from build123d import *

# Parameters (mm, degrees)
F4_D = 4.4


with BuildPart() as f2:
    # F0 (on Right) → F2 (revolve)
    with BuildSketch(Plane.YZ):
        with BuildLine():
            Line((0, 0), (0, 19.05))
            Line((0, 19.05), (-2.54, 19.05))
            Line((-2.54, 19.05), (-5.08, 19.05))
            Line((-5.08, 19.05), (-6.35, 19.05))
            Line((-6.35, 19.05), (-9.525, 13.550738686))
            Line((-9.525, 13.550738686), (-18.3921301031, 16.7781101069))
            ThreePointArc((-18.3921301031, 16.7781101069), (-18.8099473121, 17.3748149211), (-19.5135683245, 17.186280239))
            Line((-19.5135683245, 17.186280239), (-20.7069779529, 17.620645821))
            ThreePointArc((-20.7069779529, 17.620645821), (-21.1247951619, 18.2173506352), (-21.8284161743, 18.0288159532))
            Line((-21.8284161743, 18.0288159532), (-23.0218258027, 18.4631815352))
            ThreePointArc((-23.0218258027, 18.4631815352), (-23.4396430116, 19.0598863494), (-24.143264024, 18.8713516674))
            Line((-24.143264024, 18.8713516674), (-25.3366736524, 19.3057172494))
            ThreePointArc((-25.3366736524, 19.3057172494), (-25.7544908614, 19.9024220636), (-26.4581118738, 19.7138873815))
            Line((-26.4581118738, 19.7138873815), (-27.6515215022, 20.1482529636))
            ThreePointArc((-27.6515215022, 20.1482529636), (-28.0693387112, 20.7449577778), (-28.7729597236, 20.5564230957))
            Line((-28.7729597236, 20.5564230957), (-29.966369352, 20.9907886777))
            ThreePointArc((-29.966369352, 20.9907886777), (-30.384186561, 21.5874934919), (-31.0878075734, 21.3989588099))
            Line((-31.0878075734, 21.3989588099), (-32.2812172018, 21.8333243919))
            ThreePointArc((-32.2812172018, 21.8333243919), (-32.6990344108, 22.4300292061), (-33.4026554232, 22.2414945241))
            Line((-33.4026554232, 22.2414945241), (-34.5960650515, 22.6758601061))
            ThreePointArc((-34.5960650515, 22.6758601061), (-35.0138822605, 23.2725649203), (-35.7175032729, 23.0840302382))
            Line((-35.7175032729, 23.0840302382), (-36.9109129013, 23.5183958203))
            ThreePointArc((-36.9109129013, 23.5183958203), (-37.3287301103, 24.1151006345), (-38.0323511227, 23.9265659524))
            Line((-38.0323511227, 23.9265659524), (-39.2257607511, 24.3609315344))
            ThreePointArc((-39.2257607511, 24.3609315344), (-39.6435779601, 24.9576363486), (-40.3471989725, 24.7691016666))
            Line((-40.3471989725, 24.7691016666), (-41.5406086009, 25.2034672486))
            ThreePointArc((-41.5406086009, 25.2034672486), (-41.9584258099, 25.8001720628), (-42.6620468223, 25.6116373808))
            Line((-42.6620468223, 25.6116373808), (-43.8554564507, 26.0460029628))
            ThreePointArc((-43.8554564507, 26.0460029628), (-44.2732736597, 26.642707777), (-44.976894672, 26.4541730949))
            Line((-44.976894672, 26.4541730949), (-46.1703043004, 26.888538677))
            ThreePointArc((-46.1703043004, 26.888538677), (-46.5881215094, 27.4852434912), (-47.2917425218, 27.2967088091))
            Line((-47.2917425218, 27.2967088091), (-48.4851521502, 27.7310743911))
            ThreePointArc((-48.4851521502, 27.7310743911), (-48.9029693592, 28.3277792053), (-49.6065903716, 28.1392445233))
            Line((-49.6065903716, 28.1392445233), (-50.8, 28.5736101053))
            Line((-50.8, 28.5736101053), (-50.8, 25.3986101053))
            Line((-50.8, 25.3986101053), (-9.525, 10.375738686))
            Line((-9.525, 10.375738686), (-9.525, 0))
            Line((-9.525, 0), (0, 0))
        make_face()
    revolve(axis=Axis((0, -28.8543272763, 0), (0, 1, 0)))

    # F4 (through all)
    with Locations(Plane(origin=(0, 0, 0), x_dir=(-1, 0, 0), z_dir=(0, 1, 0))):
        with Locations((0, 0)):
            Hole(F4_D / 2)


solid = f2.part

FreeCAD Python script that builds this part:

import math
import FreeCAD as App
import Part
import Sketcher
from FreeCAD import Vector
Q = App.Units.Quantity

doc = App.newDocument("Part")
params = doc.addObject("Spreadsheet::Sheet", "Params")
for row, (alias, value) in enumerate([
    ("sketch1_radius", "0.025 in"),
    ("sketch1_width", "0.25 in"),
    ("sketch1_height", "0.75 in"),
    ("sketch1_length", "0.25 in"),
    ("sketch1_length2", "0.05 in"),
    ("revolution_angle", "360 deg"),
    ("hole_diameter", "4.4 mm"),
], start=1):
    params.set(f"A{row}", alias)
    params.set(f"B{row}", "=" + value)
    params.setAlias(f"B{row}", alias)

body = doc.addObject("PartDesign::Body", "Body")

sketch1 = body.newObject("Sketcher::SketchObject", "Sketch")
sketch1.AttachmentSupport = (doc.getObject("YZ_Plane"), [""])
sketch1.MapMode = "FlatFace"
sketch1.addGeometry([
    Part.LineSegment(Vector(0, 0, 0), Vector(0, 19.1, 0)),
    Part.LineSegment(Vector(0, 19.1, 0), Vector(-6.3, 19.1, 0)),
    Part.LineSegment(Vector(-6.3, 19.1, 0), Vector(-9.5, 13.6, 0)),
    Part.LineSegment(Vector(-9.5, 13.6, 0), Vector(-18.4, 16.8, 0)),
    Part.ArcOfCircle(Part.Circle(Vector(-19, 16.8, 0), Vector(0, 0, 1), 0.6), math.radians(0), math.radians(140)),
    Part.LineSegment(Vector(-19.5, 17.2, 0), Vector(-20.7, 17.6, 0)),
    Part.ArcOfCircle(Part.Circle(Vector(-21.3, 17.6, 0), Vector(0, 0, 1), 0.6), math.radians(0), math.radians(140)),
    Part.LineSegment(Vector(-21.8, 18, 0), Vector(-23, 18.5, 0)),
    Part.ArcOfCircle(Part.Circle(Vector(-23.7, 18.5, 0), Vector(0, 0, 1), 0.6), math.radians(0), math.radians(140)),
    Part.LineSegment(Vector(-24.1, 18.9, 0), Vector(-25.3, 19.3, 0)),
    Part.ArcOfCircle(Part.Circle(Vector(-26, 19.3, 0), Vector(0, 0, 1), 0.6), math.radians(0), math.radians(140)),
    Part.LineSegment(Vector(-26.5, 19.7, 0), Vector(-27.7, 20.1, 0)),
    Part.ArcOfCircle(Part.Circle(Vector(-28.3, 20.1, 0), Vector(0, 0, 1), 0.6), math.radians(0), math.radians(140)),
    Part.LineSegment(Vector(-28.8, 20.6, 0), Vector(-30, 21, 0)),
    Part.ArcOfCircle(Part.Circle(Vector(-30.6, 21, 0), Vector(0, 0, 1), 0.6), math.radians(0), math.radians(140)),
    Part.LineSegment(Vector(-31.1, 21.4, 0), Vector(-32.3, 21.8, 0)),
    Part.ArcOfCircle(Part.Circle(Vector(-32.9, 21.8, 0), Vector(0, 0, 1), 0.6), math.radians(0), math.radians(140)),
    Part.LineSegment(Vector(-33.4, 22.2, 0), Vector(-34.6, 22.7, 0)),
    Part.ArcOfCircle(Part.Circle(Vector(-35.2, 22.7, 0), Vector(0, 0, 1), 0.6), math.radians(0), math.radians(140)),
    Part.LineSegment(Vector(-35.7, 23.1, 0), Vector(-36.9, 23.5, 0)),
    Part.ArcOfCircle(Part.Circle(Vector(-37.5, 23.5, 0), Vector(0, 0, 1), 0.6), math.radians(0), math.radians(140)),
    Part.LineSegment(Vector(-38, 23.9, 0), Vector(-39.2, 24.4, 0)),
    Part.ArcOfCircle(Part.Circle(Vector(-39.9, 24.4, 0), Vector(0, 0, 1), 0.6), math.radians(0), math.radians(140)),
    Part.LineSegment(Vector(-40.3, 24.8, 0), Vector(-41.5, 25.2, 0)),
    Part.ArcOfCircle(Part.Circle(Vector(-42.2, 25.2, 0), Vector(0, 0, 1), 0.6), math.radians(0), math.radians(140)),
    Part.LineSegment(Vector(-42.7, 25.6, 0), Vector(-43.9, 26, 0)),
    Part.ArcOfCircle(Part.Circle(Vector(-44.5, 26, 0), Vector(0, 0, 1), 0.6), math.radians(0), math.radians(140)),
    Part.LineSegment(Vector(-45, 26.5, 0), Vector(-46.2, 26.9, 0)),
    Part.ArcOfCircle(Part.Circle(Vector(-46.8, 26.9, 0), Vector(0, 0, 1), 0.6), math.radians(0), math.radians(140)),
    Part.LineSegment(Vector(-47.3, 27.3, 0), Vector(-48.5, 27.7, 0)),
    Part.ArcOfCircle(Part.Circle(Vector(-49.1, 27.7, 0), Vector(0, 0, 1), 0.6), math.radians(0), math.radians(140)),
    Part.LineSegment(Vector(-49.6, 28.1, 0), Vector(-50.8, 28.6, 0)),
    Part.LineSegment(Vector(-50.8, 28.6, 0), Vector(-50.8, 25.4, 0)),
    Part.LineSegment(Vector(-50.8, 25.4, 0), Vector(-9.5, 10.4, 0)),
    Part.LineSegment(Vector(-9.5, 10.4, 0), Vector(-9.5, 0, 0)),
    Part.LineSegment(Vector(-9.5, 0, 0), Vector(0, 0, 0)),
], False)
sketch1.addConstraint([
    Sketcher.Constraint("Coincident", 0, 2, 1, 1),
    Sketcher.Constraint("Coincident", 1, 2, 2, 1),
    Sketcher.Constraint("Coincident", 2, 2, 3, 1),
    Sketcher.Constraint("Coincident", 3, 2, 4, 1),
    Sketcher.Constraint("Coincident", 4, 2, 5, 1),
    Sketcher.Constraint("Coincident", 5, 2, 6, 1),
    Sketcher.Constraint("Coincident", 6, 2, 7, 1),
    Sketcher.Constraint("Coincident", 7, 2, 8, 1),
    Sketcher.Constraint("Coincident", 8, 2, 9, 1),
    Sketcher.Constraint("Coincident", 9, 2, 10, 1),
    Sketcher.Constraint("Coincident", 10, 2, 11, 1),
    Sketcher.Constraint("Coincident", 11, 2, 12, 1),
    Sketcher.Constraint("Coincident", 12, 2, 13, 1),
    Sketcher.Constraint("Coincident", 13, 2, 14, 1),
    Sketcher.Constraint("Coincident", 14, 2, 15, 1),
    Sketcher.Constraint("Coincident", 15, 2, 16, 1),
    Sketcher.Constraint("Coincident", 16, 2, 17, 1),
    Sketcher.Constraint("Coincident", 17, 2, 18, 1),
    Sketcher.Constraint("Coincident", 18, 2, 19, 1),
    Sketcher.Constraint("Coincident", 19, 2, 20, 1),
    Sketcher.Constraint("Coincident", 20, 2, 21, 1),
    Sketcher.Constraint("Coincident", 21, 2, 22, 1),
    Sketcher.Constraint("Coincident", 22, 2, 23, 1),
    Sketcher.Constraint("Coincident", 23, 2, 24, 1),
    Sketcher.Constraint("Coincident", 24, 2, 25, 1),
    Sketcher.Constraint("Coincident", 25, 2, 26, 1),
    Sketcher.Constraint("Coincident", 26, 2, 27, 1),
    Sketcher.Constraint("Coincident", 27, 2, 28, 1),
    Sketcher.Constraint("Coincident", 28, 2, 29, 1),
    Sketcher.Constraint("Coincident", 29, 2, 30, 1),
    Sketcher.Constraint("Coincident", 30, 2, 31, 1),
    Sketcher.Constraint("Coincident", 31, 2, 32, 1),
    Sketcher.Constraint("Coincident", 32, 2, 33, 1),
    Sketcher.Constraint("Coincident", 33, 2, 34, 1),
    Sketcher.Constraint("Coincident", 34, 2, 35, 1),
    Sketcher.Constraint("Coincident", 35, 2, 0, 1),
    Sketcher.Constraint("Vertical", 0),
    Sketcher.Constraint("Horizontal", 1),
    Sketcher.Constraint("Vertical", 32),
    Sketcher.Constraint("Vertical", 34),
    Sketcher.Constraint("Horizontal", 35),
    Sketcher.Constraint("Coincident", 35, 2, -1, 1),
    Sketcher.Constraint("Equal", 4, 6),
    Sketcher.Constraint("Equal", 6, 8),
    Sketcher.Constraint("Equal", 8, 10),
    Sketcher.Constraint("Equal", 10, 12),
    Sketcher.Constraint("Equal", 12, 14),
    Sketcher.Constraint("Equal", 14, 16),
    Sketcher.Constraint("Equal", 16, 18),
    Sketcher.Constraint("Equal", 18, 20),
    Sketcher.Constraint("Equal", 20, 22),
    Sketcher.Constraint("Equal", 22, 24),
    Sketcher.Constraint("Equal", 24, 26),
    Sketcher.Constraint("Equal", 26, 28),
    Sketcher.Constraint("Equal", 28, 30),
    Sketcher.Constraint("Parallel", 3, 5),
    Sketcher.Constraint("Parallel", 5, 7),
    Sketcher.Constraint("Parallel", 7, 9),
    Sketcher.Constraint("Parallel", 9, 11),
    Sketcher.Constraint("Parallel", 11, 13),
    Sketcher.Constraint("Parallel", 13, 15),
    Sketcher.Constraint("Parallel", 15, 17),
    Sketcher.Constraint("Parallel", 17, 19),
    Sketcher.Constraint("Parallel", 19, 21),
    Sketcher.Constraint("Parallel", 21, 23),
    Sketcher.Constraint("Parallel", 23, 25),
    Sketcher.Constraint("Parallel", 25, 27),
    Sketcher.Constraint("Parallel", 27, 29),
    Sketcher.Constraint("Parallel", 29, 31),
    Sketcher.Constraint("Parallel", 31, 33),
    Sketcher.Constraint("Horizontal", 4, 3, 3, 2),
    Sketcher.Constraint("Horizontal", 6, 3, 5, 2),
    Sketcher.Constraint("Horizontal", 8, 3, 7, 2),
    Sketcher.Constraint("Horizontal", 10, 3, 9, 2),
    Sketcher.Constraint("Horizontal", 12, 3, 11, 2),
    Sketcher.Constraint("Horizontal", 14, 3, 13, 2),
    Sketcher.Constraint("Horizontal", 16, 3, 15, 2),
    Sketcher.Constraint("Horizontal", 18, 3, 17, 2),
    Sketcher.Constraint("Horizontal", 20, 3, 19, 2),
    Sketcher.Constraint("Horizontal", 22, 3, 21, 2),
    Sketcher.Constraint("Horizontal", 24, 3, 23, 2),
    Sketcher.Constraint("Horizontal", 26, 3, 25, 2),
    Sketcher.Constraint("Horizontal", 28, 3, 27, 2),
    Sketcher.Constraint("Horizontal", 30, 3, 29, 2),
    Sketcher.Constraint("Vertical", 2, 2, 33, 2),
    Sketcher.Constraint("Equal", 5, 7),
    Sketcher.Constraint("Equal", 7, 9),
    Sketcher.Constraint("Equal", 9, 11),
    Sketcher.Constraint("Equal", 11, 13),
    Sketcher.Constraint("Equal", 13, 15),
    Sketcher.Constraint("Equal", 15, 17),
    Sketcher.Constraint("Equal", 17, 19),
    Sketcher.Constraint("Equal", 19, 21),
    Sketcher.Constraint("Equal", 21, 23),
    Sketcher.Constraint("Equal", 23, 25),
    Sketcher.Constraint("Equal", 25, 27),
    Sketcher.Constraint("Equal", 27, 29),
    Sketcher.Constraint("Equal", 29, 31),
    Sketcher.Constraint("DistanceX", 31, 2, -1, 1, Q("2 in")),
    Sketcher.Constraint("Angle", 2, Q("-120 deg")),
    Sketcher.Constraint("Angle", 3, Q("160 deg")),
    Sketcher.Constraint("Radius", 4, Q("0.025 in")),
    Sketcher.Constraint("DistanceX", 1, 2, 1, 1, Q("0.25 in")),
    Sketcher.Constraint("DistanceY", 0, 1, 0, 2, Q("0.75 in")),
    Sketcher.Constraint("Distance", 2, Q("0.25 in")),
    Sketcher.Constraint("Distance", 5, Q("0.05 in")),
    Sketcher.Constraint("DistanceY", 32, 2, 32, 1, Q("0.125 in")),
    Sketcher.Constraint("DistanceY", 33, 2, 2, 2, Q("0.125 in")),
    Sketcher.Constraint("DistanceX", 22, 2, -1, 1, Q("40.347199 mm")),
    Sketcher.Constraint("DistanceY", 4, 2, 8, 3, Q("1.276901 mm")),
    Sketcher.Constraint("DistanceY", 26, 2, 29, 2, Q("1.276901 mm")),
    Sketcher.Constraint("DistanceY", 28, 2, 31, 2, Q("1.276901 mm")),
    Sketcher.Constraint("DistanceY", -1, 1, 8, 3, Q("18.463182 mm")),
    Sketcher.Constraint("DistanceX", 12, 3, -1, 1, Q("28.286522 mm")),
    Sketcher.Constraint("DistanceX", 14, 3, -1, 1, Q("30.601369 mm")),
    Sketcher.Constraint("DistanceY", -1, 1, 18, 3, Q("22.67586 mm")),
    Sketcher.Constraint("DistanceX", 22, 3, -1, 1, Q("39.860761 mm")),
    Sketcher.Constraint("DistanceY", -1, 1, 8, 2, Q("18.871352 mm")),
    Sketcher.Constraint("DistanceY", -1, 1, 14, 2, Q("21.398959 mm")),
    Sketcher.Constraint("DistanceY", -1, 1, 18, 2, Q("23.08403 mm")),
    Sketcher.Constraint("DistanceY", 22, 3, 26, 3, Q("1.685071 mm")),
])
sketch1.setExpression("Constraints[101]", "Params.sketch1_radius")
sketch1.setExpression("Constraints[102]", "Params.sketch1_width")
sketch1.setExpression("Constraints[103]", "Params.sketch1_height")
sketch1.setExpression("Constraints[104]", "Params.sketch1_length")
sketch1.setExpression("Constraints[105]", "Params.sketch1_length2")
revolution = body.newObject("PartDesign::Revolution", "Revolution")
revolution.Profile = sketch1
revolution.ReferenceAxis = (sketch1, ["H_Axis"])
revolution.setExpression("Angle", "Params.revolution_angle")

sketch2 = body.newObject("Sketcher::SketchObject", "Sketch001")
sketch2.AttachmentSupport = (doc.getObject("XZ_Plane"), [""])
sketch2.MapMode = "FlatFace"
sketch2.addGeometry(Part.Circle(Vector(0, 0, 0), Vector(0, 0, 1), 2.2), False)
sketch2.addConstraint([
    Sketcher.Constraint("Coincident", 0, 3, -1, 1),
    Sketcher.Constraint("Diameter", 0, Q("4.4 mm")),
])
doc.recompute()
hole = body.newObject("PartDesign::Hole", "Hole")
hole.Profile = sketch2
hole.ThreadType = "None"
hole.setExpression("Diameter", "Params.hole_diameter")
hole.DepthType = "ThroughAll"
hole.Reversed = True

doc.recompute()
